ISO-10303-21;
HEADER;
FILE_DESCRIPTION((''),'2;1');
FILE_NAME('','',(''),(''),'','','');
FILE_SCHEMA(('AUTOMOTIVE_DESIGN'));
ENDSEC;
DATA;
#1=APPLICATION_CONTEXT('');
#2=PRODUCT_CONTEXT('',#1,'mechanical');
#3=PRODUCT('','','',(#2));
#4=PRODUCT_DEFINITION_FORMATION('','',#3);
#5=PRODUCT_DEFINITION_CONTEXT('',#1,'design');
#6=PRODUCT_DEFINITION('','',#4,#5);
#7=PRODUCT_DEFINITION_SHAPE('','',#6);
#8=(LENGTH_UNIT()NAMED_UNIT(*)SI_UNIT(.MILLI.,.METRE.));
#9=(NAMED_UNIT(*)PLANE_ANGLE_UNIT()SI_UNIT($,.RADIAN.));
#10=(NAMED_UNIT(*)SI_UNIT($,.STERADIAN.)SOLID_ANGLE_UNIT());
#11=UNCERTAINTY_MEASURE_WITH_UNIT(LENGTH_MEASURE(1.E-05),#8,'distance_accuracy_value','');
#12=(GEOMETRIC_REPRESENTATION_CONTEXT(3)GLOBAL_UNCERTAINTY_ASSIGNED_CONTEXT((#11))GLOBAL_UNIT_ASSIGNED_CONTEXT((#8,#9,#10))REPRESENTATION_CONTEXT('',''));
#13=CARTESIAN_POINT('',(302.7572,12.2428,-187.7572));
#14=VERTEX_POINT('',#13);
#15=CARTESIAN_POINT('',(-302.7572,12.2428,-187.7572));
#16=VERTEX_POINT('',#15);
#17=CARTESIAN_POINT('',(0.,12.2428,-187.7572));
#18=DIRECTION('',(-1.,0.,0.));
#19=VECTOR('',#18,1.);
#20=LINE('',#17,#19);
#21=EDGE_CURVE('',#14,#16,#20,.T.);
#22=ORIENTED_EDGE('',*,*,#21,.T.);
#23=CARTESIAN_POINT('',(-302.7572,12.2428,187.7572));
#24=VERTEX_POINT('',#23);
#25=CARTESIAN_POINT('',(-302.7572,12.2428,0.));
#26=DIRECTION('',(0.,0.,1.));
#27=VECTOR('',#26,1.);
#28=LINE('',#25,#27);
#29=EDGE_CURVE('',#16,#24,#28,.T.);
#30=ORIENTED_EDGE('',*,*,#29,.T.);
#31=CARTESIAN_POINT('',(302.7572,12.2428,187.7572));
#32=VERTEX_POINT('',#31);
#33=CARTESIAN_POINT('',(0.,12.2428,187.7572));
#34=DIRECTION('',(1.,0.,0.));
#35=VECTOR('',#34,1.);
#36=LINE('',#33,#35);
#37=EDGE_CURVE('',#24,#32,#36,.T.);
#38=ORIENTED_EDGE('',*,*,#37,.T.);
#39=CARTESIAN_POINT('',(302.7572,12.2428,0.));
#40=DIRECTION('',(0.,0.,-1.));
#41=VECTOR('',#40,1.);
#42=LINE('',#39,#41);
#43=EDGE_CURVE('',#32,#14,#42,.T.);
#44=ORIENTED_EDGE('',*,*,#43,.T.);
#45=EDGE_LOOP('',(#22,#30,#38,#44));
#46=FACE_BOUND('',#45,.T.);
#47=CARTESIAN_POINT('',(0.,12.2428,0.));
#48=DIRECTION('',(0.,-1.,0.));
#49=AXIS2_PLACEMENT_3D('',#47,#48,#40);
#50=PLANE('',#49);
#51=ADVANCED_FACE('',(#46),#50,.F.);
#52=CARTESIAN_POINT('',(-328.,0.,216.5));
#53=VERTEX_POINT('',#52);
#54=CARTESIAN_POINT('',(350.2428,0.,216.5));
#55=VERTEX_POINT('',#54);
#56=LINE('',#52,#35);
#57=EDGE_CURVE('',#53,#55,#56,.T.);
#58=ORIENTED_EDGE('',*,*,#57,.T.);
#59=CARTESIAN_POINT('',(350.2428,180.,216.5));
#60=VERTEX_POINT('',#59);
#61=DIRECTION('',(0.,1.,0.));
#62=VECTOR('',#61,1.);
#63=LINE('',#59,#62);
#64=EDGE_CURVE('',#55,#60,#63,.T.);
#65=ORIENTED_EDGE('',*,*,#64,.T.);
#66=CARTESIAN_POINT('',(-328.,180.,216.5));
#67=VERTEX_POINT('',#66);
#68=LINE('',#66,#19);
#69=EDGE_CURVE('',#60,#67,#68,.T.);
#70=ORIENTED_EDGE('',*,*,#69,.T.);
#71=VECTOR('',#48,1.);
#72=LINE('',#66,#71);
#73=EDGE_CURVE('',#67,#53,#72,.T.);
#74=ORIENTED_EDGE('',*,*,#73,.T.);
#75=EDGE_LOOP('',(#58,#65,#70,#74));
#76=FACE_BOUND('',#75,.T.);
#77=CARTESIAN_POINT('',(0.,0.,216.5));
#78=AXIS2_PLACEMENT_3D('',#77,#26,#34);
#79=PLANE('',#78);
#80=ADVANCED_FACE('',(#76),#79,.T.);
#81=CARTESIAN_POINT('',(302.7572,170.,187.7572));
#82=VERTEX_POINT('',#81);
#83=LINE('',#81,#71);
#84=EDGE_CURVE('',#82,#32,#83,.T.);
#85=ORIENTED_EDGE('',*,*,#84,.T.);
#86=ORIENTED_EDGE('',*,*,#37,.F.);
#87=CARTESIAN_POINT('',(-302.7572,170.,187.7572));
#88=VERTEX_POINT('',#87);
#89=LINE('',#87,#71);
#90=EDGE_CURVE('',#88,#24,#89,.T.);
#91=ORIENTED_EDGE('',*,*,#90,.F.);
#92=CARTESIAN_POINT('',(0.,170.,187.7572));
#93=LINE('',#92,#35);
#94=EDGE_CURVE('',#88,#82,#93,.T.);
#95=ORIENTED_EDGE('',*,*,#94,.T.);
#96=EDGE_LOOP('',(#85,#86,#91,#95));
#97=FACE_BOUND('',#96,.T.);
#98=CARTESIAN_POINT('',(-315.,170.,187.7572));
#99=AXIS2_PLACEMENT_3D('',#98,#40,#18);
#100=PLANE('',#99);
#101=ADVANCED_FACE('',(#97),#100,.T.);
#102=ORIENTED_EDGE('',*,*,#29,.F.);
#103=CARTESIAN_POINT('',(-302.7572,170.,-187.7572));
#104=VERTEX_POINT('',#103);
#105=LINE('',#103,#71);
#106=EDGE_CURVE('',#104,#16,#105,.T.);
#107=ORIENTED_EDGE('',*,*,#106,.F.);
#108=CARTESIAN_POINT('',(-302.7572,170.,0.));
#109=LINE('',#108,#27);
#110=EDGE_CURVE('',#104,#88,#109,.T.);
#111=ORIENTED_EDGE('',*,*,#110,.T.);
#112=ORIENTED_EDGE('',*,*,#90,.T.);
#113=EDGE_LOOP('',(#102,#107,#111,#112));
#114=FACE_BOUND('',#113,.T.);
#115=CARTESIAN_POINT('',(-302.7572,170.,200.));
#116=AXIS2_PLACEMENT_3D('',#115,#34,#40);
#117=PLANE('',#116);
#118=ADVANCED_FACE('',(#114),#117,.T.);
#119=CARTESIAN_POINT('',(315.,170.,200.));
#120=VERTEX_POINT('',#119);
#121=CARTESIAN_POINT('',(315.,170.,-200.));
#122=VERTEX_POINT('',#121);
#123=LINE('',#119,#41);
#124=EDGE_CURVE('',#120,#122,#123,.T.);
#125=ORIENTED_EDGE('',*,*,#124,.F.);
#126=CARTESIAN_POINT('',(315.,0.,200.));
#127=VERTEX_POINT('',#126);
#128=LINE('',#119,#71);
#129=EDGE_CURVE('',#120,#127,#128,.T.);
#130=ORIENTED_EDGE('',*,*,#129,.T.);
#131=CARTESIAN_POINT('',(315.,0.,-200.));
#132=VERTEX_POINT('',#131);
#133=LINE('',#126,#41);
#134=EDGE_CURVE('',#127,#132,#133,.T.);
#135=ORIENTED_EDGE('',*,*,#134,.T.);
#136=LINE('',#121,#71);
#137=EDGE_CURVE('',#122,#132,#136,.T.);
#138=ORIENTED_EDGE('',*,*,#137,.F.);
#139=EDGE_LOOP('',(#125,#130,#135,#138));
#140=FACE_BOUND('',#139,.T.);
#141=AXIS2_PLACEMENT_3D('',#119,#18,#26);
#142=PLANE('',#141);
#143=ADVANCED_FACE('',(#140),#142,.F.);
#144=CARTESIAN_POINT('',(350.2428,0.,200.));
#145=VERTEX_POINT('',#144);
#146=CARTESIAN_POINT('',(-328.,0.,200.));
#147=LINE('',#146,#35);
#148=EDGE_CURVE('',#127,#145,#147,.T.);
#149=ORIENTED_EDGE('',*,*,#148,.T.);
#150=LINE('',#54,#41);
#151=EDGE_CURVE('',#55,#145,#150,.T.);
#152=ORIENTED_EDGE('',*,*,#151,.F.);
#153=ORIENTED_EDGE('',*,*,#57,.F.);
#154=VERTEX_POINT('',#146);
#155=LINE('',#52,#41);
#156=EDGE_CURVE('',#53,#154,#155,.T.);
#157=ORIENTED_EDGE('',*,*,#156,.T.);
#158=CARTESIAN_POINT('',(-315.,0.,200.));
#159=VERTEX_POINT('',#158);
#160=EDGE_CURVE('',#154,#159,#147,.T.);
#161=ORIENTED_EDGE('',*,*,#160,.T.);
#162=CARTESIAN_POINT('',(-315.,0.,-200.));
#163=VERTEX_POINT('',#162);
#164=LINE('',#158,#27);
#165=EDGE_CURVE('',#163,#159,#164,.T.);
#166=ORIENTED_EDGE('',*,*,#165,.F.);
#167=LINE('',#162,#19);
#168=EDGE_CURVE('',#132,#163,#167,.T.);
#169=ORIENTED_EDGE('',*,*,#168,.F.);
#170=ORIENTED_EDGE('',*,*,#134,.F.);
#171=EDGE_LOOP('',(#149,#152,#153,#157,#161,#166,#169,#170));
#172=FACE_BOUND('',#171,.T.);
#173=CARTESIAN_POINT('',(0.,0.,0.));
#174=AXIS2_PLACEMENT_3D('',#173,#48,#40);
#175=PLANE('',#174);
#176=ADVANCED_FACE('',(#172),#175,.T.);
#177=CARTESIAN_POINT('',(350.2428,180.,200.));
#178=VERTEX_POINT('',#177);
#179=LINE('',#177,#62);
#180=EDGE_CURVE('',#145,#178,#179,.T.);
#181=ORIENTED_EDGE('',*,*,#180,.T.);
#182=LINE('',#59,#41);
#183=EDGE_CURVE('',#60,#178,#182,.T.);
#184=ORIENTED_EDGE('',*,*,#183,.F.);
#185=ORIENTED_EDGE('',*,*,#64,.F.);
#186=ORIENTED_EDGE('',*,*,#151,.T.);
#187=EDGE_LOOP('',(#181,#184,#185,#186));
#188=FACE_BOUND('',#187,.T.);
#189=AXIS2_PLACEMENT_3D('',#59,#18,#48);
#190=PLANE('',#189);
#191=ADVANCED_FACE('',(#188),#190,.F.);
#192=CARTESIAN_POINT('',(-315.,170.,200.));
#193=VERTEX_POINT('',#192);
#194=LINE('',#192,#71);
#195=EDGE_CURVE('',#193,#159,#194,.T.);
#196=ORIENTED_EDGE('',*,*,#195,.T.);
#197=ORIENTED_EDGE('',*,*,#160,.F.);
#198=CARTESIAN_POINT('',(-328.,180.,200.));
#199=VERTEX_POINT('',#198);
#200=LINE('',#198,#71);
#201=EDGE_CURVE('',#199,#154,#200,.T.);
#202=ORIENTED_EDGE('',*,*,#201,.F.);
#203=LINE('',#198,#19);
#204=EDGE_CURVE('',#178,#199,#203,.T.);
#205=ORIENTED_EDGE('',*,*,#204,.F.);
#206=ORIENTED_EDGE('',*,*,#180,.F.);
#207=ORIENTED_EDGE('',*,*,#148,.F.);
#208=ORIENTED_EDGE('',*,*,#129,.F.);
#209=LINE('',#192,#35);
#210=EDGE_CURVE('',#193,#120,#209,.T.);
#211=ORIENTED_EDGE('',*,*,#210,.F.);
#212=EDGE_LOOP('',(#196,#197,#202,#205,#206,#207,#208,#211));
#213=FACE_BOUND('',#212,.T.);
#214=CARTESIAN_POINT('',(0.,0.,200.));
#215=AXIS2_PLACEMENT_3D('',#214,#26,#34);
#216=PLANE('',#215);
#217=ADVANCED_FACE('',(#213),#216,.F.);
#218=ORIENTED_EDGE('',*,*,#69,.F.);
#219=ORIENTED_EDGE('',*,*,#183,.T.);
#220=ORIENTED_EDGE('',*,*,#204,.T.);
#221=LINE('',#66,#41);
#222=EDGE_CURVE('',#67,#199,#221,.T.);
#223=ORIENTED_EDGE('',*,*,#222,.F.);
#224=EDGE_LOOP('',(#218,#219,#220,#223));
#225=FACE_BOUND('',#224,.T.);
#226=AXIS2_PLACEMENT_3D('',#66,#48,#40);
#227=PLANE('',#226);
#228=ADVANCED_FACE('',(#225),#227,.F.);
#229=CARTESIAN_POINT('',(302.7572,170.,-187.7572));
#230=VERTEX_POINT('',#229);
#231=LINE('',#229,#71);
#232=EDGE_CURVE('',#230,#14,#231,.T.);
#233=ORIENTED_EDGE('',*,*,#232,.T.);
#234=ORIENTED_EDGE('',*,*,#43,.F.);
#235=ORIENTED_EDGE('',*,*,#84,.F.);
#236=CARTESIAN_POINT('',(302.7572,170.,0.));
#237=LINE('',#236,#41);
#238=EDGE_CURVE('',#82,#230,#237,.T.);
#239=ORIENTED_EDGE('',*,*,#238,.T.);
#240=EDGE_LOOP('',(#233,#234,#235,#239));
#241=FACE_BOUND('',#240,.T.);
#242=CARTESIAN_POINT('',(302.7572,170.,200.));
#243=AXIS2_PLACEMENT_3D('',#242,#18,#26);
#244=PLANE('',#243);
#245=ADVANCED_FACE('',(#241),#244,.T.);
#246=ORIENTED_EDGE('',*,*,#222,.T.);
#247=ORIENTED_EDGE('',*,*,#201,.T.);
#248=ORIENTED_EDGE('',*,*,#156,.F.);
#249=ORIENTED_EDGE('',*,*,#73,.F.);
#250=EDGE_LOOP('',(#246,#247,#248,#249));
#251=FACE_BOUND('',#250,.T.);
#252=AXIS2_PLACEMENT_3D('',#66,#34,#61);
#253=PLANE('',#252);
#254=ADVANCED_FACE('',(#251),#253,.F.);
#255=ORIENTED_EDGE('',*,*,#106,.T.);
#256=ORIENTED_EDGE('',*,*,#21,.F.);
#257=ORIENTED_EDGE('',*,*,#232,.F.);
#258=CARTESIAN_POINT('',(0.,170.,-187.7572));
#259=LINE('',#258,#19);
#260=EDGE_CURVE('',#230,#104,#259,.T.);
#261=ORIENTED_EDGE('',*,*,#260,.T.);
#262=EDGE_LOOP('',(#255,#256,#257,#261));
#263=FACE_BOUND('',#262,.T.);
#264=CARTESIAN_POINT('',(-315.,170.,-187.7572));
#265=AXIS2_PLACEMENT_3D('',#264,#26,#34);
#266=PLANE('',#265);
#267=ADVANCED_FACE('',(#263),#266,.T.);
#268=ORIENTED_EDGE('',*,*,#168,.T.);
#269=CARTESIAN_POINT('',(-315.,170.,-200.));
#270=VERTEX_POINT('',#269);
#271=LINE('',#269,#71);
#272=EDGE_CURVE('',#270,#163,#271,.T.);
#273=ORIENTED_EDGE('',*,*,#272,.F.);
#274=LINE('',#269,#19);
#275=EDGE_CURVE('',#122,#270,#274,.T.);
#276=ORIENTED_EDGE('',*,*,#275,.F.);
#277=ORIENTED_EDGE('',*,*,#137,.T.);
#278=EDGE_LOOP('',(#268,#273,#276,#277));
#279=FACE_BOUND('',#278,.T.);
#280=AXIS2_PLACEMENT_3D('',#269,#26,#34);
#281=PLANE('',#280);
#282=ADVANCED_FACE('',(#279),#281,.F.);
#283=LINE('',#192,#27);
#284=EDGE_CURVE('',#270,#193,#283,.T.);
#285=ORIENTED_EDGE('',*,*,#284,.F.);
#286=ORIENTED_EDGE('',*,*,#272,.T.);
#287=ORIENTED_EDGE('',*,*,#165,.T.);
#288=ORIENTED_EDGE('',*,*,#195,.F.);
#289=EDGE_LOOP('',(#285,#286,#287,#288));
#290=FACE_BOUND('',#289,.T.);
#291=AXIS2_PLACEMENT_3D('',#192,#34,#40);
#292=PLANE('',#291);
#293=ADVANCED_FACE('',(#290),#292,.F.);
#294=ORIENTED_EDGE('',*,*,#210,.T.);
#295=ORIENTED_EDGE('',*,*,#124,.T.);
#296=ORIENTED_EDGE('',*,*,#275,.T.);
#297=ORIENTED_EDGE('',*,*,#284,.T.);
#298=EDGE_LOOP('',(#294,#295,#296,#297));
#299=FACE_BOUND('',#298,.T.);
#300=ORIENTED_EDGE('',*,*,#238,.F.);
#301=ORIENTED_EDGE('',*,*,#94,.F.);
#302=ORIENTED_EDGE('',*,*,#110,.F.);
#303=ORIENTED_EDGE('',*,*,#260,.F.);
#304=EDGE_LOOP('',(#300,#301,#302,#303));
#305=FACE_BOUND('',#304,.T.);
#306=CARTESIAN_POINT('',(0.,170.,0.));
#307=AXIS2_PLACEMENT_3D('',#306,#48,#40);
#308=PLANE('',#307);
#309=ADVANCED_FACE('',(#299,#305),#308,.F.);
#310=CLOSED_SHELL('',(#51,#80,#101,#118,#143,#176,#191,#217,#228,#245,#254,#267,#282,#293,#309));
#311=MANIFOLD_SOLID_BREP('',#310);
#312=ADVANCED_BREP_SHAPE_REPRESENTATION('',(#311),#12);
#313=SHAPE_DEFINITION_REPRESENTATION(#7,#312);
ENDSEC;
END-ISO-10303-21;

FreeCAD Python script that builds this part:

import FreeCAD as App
import Part
import Sketcher

V = App.Vector
Q = App.Units.Quantity


def faces_at(feature, points):
    """Names of the faces that lie closest to the given points."""
    faces = feature.Shape.Faces
    near = lambda p: min(range(len(faces)), key=lambda i: faces[i].distToShape(Part.Vertex(*p))[0])
    return sorted({f"Face{near(p) + 1}" for p in points})

doc = App.newDocument("Part")
body = doc.addObject("PartDesign::Body", "Body")

# Sketch on XZ plane
sketch1 = body.newObject("Sketcher::SketchObject", "Sketch")
sketch1.AttachmentSupport = (doc.getObject("XZ_Plane"), [""])
sketch1.MapMode = "FlatFace"
sketch1.addGeometry([
    Part.LineSegment(V(-315, -200, 0), V(-315, 200, 0)),
    Part.LineSegment(V(-315, 200, 0), V(315, 200, 0)),
    Part.LineSegment(V(315, 200, 0), V(315, -200, 0)),
    Part.LineSegment(V(315, -200, 0), V(-315, -200, 0)),
], False)
sketch1.addConstraint([
    Sketcher.Constraint("Coincident", 0, 2, 1, 1),
    Sketcher.Constraint("Coincident", 1, 2, 2, 1),
    Sketcher.Constraint("Coincident", 2, 2, 3, 1),
    Sketcher.Constraint("Coincident", 3, 2, 0, 1),
    Sketcher.Constraint("Vertical", 0),
    Sketcher.Constraint("Horizontal", 1),
    Sketcher.Constraint("Vertical", 2),
    Sketcher.Constraint("Horizontal", 3),
    Sketcher.Constraint("Symmetric", 0, 2, 2, 2, -1, 1),
    Sketcher.Constraint("DistanceX", 1, 1, 1, 2, Q("630 mm")),
    Sketcher.Constraint("DistanceY", 0, 1, 0, 2, Q("400 mm")),
])
pad1 = body.newObject("PartDesign::Pad", "Pad")
pad1.Profile = sketch1
pad1.Length = 170
pad1.Reversed = True
doc.recompute()

thickness = body.newObject("PartDesign::Thickness", "Thickness")
thickness.Base = (pad1, faces_at(pad1, [(0, 170, 0)]))
thickness.Value = 12.2428
thickness.Reversed = True
thickness.Join = "Intersection"

# Sketch on XY plane
sketch2 = body.newObject("Sketcher::SketchObject", "Sketch001")
sketch2.AttachmentSupport = (doc.getObject("XY_Plane"), [""])
sketch2.MapMode = "FlatFace"
sketch2.AttachmentOffset = App.Placement(V(0, 0, 200), App.Rotation())
sketch2.addGeometry([
    Part.LineSegment(V(-328, 180, 0), V(-328, 0, 0)),
    Part.LineSegment(V(-328, 0, 0), V(350, 0, 0)),
    Part.LineSegment(V(350, 0, 0), V(350, 180, 0)),
    Part.LineSegment(V(350, 180, 0), V(-328, 180, 0)),
], False)
sketch2.addConstraint([
    Sketcher.Constraint("Coincident", 0, 2, 1, 1),
    Sketcher.Constraint("Coincident", 1, 2, 2, 1),
    Sketcher.Constraint("Coincident", 2, 2, 3, 1),
    Sketcher.Constraint("Coincident", 3, 2, 0, 1),
    Sketcher.Constraint("Vertical", 0),
    Sketcher.Constraint("Horizontal", 1),
    Sketcher.Constraint("Vertical", 2),
    Sketcher.Constraint("Horizontal", 3),
    Sketcher.Constraint("PointOnObject", 0, 2, -1),
    Sketcher.Constraint("DistanceY", 0, 2, 0, 1, Q("180 mm")),
    Sketcher.Constraint("DistanceX", 0, 2, -1, 1, Q("328 mm")),
    Sketcher.Constraint("DistanceX", 1, 1, 1, 2, Q("678.2428 mm")),
])
pad2 = body.newObject("PartDesign::Pad", "Pad001")
pad2.Profile = sketch2
pad2.Length = 16.5

doc.recompute()
